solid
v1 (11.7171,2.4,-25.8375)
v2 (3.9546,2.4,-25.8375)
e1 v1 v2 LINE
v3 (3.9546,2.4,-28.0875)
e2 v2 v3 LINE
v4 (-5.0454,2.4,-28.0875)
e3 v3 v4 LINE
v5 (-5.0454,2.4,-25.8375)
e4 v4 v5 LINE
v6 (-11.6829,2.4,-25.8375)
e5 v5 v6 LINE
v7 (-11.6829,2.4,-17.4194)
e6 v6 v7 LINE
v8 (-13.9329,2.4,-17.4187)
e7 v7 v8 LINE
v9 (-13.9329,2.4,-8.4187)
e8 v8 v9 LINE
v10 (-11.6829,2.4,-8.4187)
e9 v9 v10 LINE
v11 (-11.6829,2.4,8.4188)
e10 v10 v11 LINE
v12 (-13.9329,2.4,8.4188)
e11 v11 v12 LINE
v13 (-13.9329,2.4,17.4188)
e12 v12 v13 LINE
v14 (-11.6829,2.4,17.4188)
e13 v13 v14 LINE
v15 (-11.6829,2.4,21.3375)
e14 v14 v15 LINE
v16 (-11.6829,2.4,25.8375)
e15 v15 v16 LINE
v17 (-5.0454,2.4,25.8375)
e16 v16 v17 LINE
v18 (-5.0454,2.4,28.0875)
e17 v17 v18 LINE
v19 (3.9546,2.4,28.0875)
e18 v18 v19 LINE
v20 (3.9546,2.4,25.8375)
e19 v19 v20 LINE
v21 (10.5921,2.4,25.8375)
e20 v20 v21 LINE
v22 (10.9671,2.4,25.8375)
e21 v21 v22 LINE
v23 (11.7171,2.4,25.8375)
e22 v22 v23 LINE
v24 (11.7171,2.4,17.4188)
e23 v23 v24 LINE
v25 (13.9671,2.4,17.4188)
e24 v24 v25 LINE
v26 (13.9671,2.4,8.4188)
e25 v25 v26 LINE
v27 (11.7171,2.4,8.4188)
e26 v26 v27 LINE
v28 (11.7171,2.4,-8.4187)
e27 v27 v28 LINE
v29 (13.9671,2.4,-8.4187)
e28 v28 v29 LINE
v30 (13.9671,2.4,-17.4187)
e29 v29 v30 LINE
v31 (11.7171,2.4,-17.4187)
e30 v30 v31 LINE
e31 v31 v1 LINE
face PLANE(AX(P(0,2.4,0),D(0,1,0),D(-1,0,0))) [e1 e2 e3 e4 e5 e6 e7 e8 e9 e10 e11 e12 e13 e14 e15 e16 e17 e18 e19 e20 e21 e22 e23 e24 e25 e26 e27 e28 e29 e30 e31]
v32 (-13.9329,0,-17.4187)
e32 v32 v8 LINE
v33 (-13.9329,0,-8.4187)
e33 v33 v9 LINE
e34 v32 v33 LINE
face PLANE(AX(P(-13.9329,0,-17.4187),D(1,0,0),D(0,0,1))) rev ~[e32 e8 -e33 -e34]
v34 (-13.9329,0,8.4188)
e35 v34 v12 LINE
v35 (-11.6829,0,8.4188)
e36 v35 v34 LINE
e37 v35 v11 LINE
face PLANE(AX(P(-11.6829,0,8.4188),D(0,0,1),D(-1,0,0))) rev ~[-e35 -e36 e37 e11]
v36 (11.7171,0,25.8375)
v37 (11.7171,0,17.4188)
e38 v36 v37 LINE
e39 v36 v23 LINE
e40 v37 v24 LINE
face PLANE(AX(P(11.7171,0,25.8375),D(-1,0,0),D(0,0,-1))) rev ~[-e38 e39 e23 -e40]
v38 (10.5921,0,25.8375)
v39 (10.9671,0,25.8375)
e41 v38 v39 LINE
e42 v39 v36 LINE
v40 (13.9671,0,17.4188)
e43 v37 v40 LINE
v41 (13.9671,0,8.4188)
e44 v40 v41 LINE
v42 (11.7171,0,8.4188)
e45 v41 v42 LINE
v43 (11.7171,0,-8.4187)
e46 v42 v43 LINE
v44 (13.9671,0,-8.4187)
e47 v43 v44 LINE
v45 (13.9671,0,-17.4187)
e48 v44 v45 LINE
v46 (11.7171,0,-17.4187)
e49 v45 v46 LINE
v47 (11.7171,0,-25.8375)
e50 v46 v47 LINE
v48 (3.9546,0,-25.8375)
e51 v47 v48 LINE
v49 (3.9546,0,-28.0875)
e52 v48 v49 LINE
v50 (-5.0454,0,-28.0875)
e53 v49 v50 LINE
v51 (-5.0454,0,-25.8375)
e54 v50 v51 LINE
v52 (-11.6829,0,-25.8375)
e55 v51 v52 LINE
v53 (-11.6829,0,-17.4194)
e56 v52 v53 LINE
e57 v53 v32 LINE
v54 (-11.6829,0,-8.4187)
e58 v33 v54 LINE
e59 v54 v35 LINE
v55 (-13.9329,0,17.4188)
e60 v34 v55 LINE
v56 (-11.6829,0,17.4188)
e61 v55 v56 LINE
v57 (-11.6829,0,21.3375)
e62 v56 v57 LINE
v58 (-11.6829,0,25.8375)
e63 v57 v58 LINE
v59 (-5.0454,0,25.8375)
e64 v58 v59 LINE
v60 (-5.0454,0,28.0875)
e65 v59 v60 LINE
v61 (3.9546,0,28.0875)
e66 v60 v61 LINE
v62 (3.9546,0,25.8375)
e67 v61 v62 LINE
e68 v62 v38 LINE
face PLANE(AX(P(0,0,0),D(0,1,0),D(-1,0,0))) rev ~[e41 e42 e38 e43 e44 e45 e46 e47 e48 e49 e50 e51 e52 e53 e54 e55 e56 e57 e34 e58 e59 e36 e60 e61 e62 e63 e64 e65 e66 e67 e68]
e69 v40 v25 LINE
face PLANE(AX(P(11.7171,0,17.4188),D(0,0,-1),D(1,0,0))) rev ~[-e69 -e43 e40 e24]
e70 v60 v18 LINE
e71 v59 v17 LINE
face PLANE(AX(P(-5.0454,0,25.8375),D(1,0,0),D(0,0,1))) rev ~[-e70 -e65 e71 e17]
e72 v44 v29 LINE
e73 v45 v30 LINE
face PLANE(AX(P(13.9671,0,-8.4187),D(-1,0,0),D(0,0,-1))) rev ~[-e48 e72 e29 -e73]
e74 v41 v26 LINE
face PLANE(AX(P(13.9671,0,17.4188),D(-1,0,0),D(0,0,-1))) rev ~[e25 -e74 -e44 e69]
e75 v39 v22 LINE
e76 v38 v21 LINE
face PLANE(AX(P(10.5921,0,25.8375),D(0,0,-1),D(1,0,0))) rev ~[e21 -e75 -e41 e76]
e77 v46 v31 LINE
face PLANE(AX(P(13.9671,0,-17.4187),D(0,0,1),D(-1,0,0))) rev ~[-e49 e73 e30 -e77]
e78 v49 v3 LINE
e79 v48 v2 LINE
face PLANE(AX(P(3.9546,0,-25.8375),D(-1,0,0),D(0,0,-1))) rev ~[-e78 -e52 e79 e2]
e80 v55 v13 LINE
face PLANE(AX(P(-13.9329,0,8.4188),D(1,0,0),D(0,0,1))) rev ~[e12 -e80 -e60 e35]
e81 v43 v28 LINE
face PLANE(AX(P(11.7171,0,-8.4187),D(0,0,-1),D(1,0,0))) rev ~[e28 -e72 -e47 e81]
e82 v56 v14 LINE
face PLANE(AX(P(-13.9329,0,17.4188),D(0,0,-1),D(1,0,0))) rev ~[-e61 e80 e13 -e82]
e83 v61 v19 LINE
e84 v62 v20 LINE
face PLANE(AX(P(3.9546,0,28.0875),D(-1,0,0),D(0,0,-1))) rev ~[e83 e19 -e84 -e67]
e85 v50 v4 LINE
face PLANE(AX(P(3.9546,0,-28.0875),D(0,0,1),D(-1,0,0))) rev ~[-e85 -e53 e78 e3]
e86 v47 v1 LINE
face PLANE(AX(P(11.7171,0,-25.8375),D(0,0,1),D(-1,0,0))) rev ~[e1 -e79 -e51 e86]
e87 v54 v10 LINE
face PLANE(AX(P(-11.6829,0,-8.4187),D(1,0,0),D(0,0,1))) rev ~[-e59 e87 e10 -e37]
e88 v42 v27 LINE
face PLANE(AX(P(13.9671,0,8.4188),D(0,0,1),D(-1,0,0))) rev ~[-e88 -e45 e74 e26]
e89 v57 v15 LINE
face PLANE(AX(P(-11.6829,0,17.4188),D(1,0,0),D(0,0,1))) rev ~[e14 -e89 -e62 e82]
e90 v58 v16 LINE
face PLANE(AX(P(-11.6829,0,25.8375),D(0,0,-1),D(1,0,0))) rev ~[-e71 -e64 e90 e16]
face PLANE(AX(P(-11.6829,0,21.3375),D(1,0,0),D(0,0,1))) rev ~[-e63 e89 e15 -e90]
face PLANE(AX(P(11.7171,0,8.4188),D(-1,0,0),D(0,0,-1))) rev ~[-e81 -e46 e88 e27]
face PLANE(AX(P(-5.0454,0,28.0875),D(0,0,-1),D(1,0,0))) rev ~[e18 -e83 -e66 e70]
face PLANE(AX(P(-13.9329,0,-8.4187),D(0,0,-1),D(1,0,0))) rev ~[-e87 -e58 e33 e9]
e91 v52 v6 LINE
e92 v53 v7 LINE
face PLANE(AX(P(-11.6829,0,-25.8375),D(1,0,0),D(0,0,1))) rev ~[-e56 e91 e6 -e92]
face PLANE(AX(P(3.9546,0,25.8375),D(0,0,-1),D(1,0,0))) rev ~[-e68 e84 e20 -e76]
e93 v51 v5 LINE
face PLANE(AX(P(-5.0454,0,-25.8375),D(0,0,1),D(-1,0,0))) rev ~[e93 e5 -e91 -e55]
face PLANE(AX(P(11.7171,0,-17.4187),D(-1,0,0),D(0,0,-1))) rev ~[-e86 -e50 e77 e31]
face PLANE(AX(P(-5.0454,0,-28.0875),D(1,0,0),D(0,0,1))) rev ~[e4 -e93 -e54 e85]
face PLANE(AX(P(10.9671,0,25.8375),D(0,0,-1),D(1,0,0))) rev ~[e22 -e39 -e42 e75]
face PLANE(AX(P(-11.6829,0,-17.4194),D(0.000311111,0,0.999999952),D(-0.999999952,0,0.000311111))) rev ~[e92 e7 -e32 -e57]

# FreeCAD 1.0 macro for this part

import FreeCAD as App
import Part
import Sketcher

V = App.Vector
Q = App.Units.Quantity

doc = App.newDocument("Part")
body = doc.addObject("PartDesign::Body", "Body")

# Sketch on XZ plane
sketch1 = body.newObject("Sketcher::SketchObject", "Sketch")
sketch1.AttachmentSupport = (doc.getObject("XZ_Plane"), [""])
sketch1.MapMode = "FlatFace"
sketch1.addGeometry([
    Part.LineSegment(V(11.7, 8.4, 0), V(11.7, -8.4, 0)),  # 0
    Part.LineSegment(V(11.7, -8.4, 0), V(14, -8.4, 0)),  # 1
    Part.LineSegment(V(14, -8.4, 0), V(14, -17.4, 0)),  # 2
    Part.LineSegment(V(14, -17.4, 0), V(11.7, -17.4, 0)),  # 3
    Part.LineSegment(V(11.7, -17.4, 0), V(11.7, -25.8, 0)),  # 4
    Part.LineSegment(V(11.7, -25.8, 0), V(4, -25.8, 0)),  # 5
    Part.LineSegment(V(4, -25.8, 0), V(4, -28.1, 0)),  # 6
    Part.LineSegment(V(4, -28.1, 0), V(-5, -28.1, 0)),  # 7
    Part.LineSegment(V(-5, -28.1, 0), V(-5, -25.8, 0)),  # 8
    Part.LineSegment(V(-5, -25.8, 0), V(-11.7, -25.8, 0)),  # 9
    Part.LineSegment(V(-11.7, -25.8, 0), V(-11.7, -17.4, 0)),  # 10
    Part.LineSegment(V(-11.7, -17.4, 0), V(-13.9, -17.4, 0)),  # 11
    Part.LineSegment(V(-13.9, -17.4, 0), V(-13.9, -8.4, 0)),  # 12
    Part.LineSegment(V(-13.9, -8.4, 0), V(-11.7, -8.4, 0)),  # 13
    Part.LineSegment(V(-11.7, -8.4, 0), V(-11.7, 8.4, 0)),  # 14
    Part.LineSegment(V(-11.7, 8.4, 0), V(-13.9, 8.4, 0)),  # 15
    Part.LineSegment(V(-13.9, 8.4, 0), V(-13.9, 17.4, 0)),  # 16
    Part.LineSegment(V(-13.9, 17.4, 0), V(-11.7, 17.4, 0)),  # 17
    Part.LineSegment(V(-11.7, 17.4, 0), V(-11.7, 25.8, 0)),  # 18
    Part.LineSegment(V(-11.7, 25.8, 0), V(-5, 25.8, 0)),  # 19
    Part.LineSegment(V(-5, 25.8, 0), V(-5, 28.1, 0)),  # 20
    Part.LineSegment(V(-5, 28.1, 0), V(4, 28.1, 0)),  # 21
    Part.LineSegment(V(4, 28.1, 0), V(4, 25.8, 0)),  # 22
    Part.LineSegment(V(4, 25.8, 0), V(11.7, 25.8, 0)),  # 23
    Part.LineSegment(V(11.7, 25.8, 0), V(11.7, 17.4, 0)),  # 24
    Part.LineSegment(V(11.7, 17.4, 0), V(14, 17.4, 0)),  # 25
    Part.LineSegment(V(14, 17.4, 0), V(14, 8.4, 0)),  # 26
    Part.LineSegment(V(14, 8.4, 0), V(11.7, 8.4, 0)),  # 27
], False)
sketch1.addConstraint([
    Sketcher.Constraint("Coincident", 0, 2, 1, 1),
    Sketcher.Constraint("Coincident", 1, 2, 2, 1),
    Sketcher.Constraint("Coincident", 2, 2, 3, 1),
    Sketcher.Constraint("Coincident", 3, 2, 4, 1),
    Sketcher.Constraint("Coincident", 4, 2, 5, 1),
    Sketcher.Constraint("Coincident", 5, 2, 6, 1),
    Sketcher.Constraint("Coincident", 6, 2, 7, 1),
    Sketcher.Constraint("Coincident", 7, 2, 8, 1),
    Sketcher.Constraint("Coincident", 8, 2, 9, 1),
    Sketcher.Constraint("Coincident", 9, 2, 10, 1),
    Sketcher.Constraint("Coincident", 10, 2, 11, 1),
    Sketcher.Constraint("Coincident", 11, 2, 12, 1),
    Sketcher.Constraint("Coincident", 12, 2, 13, 1),
    Sketcher.Constraint("Coincident", 13, 2, 14, 1),
    Sketcher.Constraint("Coincident", 14, 2, 15, 1),
    Sketcher.Constraint("Coincident", 15, 2, 16, 1),
    Sketcher.Constraint("Coincident", 16, 2, 17, 1),
    Sketcher.Constraint("Coincident", 17, 2, 18, 1),
    Sketcher.Constraint("Coincident", 18, 2, 19, 1),
    Sketcher.Constraint("Coincident", 19, 2, 20, 1),
    Sketcher.Constraint("Coincident", 20, 2, 21, 1),
    Sketcher.Constraint("Coincident", 21, 2, 22, 1),
    Sketcher.Constraint("Coincident", 22, 2, 23, 1),
    Sketcher.Constraint("Coincident", 23, 2, 24, 1),
    Sketcher.Constraint("Coincident", 24, 2, 25, 1),
    Sketcher.Constraint("Coincident", 25, 2, 26, 1),
    Sketcher.Constraint("Coincident", 26, 2, 27, 1),
    Sketcher.Constraint("Coincident", 27, 2, 0, 1),
    Sketcher.Constraint("Vertical", 0),
    Sketcher.Constraint("Horizontal", 1),
    Sketcher.Constraint("Vertical", 2),
    Sketcher.Constraint("Horizontal", 3),
    Sketcher.Constraint("Vertical", 4),
    Sketcher.Constraint("Horizontal", 5),
    Sketcher.Constraint("Vertical", 6),
    Sketcher.Constraint("Horizontal", 7),
    Sketcher.Constraint("Vertical", 8),
    Sketcher.Constraint("Horizontal", 9),
    Sketcher.Constraint("Vertical", 10),
    Sketcher.Constraint("Vertical", 12),
    Sketcher.Constraint("Horizontal", 13),
    Sketcher.Constraint("Vertical", 14),
    Sketcher.Constraint("Horizontal", 15),
    Sketcher.Constraint("Vertical", 16),
    Sketcher.Constraint("Horizontal", 17),
    Sketcher.Constraint("Vertical", 18),
    Sketcher.Constraint("Horizontal", 19),
    Sketcher.Constraint("Vertical", 20),
    Sketcher.Constraint("Horizontal", 21),
    Sketcher.Constraint("Vertical", 22),
    Sketcher.Constraint("Horizontal", 23),
    Sketcher.Constraint("Vertical", 24),
    Sketcher.Constraint("Horizontal", 25),
    Sketcher.Constraint("Vertical", 26),
    Sketcher.Constraint("Horizontal", 27),
    Sketcher.Constraint("Symmetric", 12, 2, 15, 2, -1),
    Sketcher.Constraint("Symmetric", 9, 2, 18, 2, -1),
    Sketcher.Constraint("Symmetric", 7, 2, 20, 2, -1),
    Sketcher.Constraint("Symmetric", 5, 2, 22, 2, -1),
    Sketcher.Constraint("Symmetric", 3, 2, 24, 2, -1),
    Sketcher.Constraint("Symmetric", 1, 2, 26, 2, -1),
    Sketcher.Constraint("Horizontal", 5, 2, 8, 2),
    Sketcher.Constraint("Horizontal", 3, 2, 11, 2),
    Sketcher.Constraint("Horizontal", 1, 2, 12, 2),
    Sketcher.Constraint("Horizontal", 17, 2, 24, 2),
    Sketcher.Constraint("Vertical", 0, 2, 3, 2),
    Sketcher.Constraint("Vertical", 10, 2, 13, 2),
    Sketcher.Constraint("Equal", 3, 13),
    Sketcher.Constraint("Equal", 21, 2),
    Sketcher.Constraint("Equal", 27, 6),
    Sketcher.Constraint("DistanceX", 7, 2, 7, 1, Q("9 mm")),
    Sketcher.Constraint("DistanceX", 1, 1, 1, 2, Q("2.25 mm")),
    Sketcher.Constraint("DistanceX", 9, 2, 4, 2, Q("23.4 mm")),
    Sketcher.Constraint("DistanceY", 10, 1, 10, 2, Q("8.418 mm")),
    Sketcher.Constraint("DistanceX", 5, 2, 5, 1, Q("7.7625 mm")),
    Sketcher.Constraint("DistanceY", 0, 2, 0, 1, Q("16.8375 mm")),
    Sketcher.Constraint("DistanceY", 4, 2, 4, 1, Q("8.4188 mm")),
    Sketcher.Constraint("DistanceX", -1, 1, 0, 2, Q("11.717 mm")),
])
pad1 = body.newObject("PartDesign::Pad", "Pad")
pad1.Profile = sketch1
pad1.Length = 2.4
pad1.Reversed = True

doc.recompute()
